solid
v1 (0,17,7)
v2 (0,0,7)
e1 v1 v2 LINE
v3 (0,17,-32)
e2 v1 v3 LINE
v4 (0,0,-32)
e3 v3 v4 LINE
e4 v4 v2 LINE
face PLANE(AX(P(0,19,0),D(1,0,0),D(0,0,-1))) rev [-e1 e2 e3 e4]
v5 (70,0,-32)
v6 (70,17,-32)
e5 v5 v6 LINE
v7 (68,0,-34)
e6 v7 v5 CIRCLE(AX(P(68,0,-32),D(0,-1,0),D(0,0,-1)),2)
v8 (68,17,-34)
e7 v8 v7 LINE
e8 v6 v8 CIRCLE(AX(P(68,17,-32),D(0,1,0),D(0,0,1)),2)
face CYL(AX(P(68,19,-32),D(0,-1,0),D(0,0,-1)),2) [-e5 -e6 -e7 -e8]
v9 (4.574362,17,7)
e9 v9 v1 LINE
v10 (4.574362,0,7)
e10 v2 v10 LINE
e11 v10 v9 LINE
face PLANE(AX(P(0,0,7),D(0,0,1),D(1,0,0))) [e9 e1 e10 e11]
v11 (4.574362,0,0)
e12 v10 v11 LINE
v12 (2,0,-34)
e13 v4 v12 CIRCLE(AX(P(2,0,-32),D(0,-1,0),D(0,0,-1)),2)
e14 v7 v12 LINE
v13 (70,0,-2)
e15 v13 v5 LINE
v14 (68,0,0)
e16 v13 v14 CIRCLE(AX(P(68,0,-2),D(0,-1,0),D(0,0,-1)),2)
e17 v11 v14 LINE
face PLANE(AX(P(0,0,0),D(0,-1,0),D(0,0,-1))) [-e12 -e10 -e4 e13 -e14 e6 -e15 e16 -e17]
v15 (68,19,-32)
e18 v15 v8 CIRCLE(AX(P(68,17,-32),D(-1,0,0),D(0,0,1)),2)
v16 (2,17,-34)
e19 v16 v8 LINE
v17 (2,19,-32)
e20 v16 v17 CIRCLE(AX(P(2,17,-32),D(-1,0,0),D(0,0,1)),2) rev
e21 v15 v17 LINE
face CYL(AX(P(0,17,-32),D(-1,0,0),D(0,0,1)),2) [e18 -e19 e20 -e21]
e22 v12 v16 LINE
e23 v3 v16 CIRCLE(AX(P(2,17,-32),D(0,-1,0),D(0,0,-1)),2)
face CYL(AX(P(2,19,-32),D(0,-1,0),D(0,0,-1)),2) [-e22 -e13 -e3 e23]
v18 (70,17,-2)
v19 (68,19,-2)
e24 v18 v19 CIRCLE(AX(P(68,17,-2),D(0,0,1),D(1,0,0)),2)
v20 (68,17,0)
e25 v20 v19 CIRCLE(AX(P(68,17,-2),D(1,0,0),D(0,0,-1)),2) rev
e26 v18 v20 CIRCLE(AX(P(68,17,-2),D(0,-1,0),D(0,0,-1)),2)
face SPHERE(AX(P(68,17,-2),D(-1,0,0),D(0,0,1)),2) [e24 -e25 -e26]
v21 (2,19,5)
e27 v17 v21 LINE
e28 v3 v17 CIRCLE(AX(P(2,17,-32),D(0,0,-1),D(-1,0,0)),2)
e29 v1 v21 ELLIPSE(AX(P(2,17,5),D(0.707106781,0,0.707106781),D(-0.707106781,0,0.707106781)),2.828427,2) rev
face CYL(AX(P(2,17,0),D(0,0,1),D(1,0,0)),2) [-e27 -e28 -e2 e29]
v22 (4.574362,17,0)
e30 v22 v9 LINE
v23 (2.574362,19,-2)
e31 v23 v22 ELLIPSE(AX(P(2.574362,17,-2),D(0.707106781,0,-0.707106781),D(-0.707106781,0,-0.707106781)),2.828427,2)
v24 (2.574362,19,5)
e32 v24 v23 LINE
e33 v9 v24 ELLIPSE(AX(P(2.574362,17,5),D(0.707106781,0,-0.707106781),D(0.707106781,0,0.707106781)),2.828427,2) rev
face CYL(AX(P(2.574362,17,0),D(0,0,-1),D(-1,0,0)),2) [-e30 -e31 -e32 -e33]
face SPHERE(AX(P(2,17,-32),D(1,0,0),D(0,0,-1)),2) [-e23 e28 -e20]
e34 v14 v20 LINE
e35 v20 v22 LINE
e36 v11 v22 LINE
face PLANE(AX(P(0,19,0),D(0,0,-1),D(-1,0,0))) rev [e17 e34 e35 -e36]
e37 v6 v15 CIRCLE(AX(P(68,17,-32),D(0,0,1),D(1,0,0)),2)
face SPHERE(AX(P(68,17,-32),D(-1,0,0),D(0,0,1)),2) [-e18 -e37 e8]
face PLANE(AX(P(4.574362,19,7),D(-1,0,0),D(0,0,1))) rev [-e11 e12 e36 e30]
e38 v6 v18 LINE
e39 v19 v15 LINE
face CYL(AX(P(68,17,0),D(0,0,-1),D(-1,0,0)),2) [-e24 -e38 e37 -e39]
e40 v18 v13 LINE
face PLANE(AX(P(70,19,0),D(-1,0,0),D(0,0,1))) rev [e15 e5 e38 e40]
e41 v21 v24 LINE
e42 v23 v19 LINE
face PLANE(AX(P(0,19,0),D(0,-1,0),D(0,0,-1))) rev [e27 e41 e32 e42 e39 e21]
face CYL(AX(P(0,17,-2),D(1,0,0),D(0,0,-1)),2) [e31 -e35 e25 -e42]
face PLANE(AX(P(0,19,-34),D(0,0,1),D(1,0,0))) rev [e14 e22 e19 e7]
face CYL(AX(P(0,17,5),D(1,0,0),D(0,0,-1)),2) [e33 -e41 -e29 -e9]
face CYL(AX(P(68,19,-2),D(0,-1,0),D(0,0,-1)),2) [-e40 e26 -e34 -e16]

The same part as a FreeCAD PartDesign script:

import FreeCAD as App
import Part
import Sketcher
from FreeCAD import Vector


def edges_at(feature, points):
    """Names of the edges that pass closest to the given points."""
    edges = feature.Shape.Edges
    near = lambda p: min(range(len(edges)), key=lambda i: edges[i].distToShape(Part.Vertex(*p))[0])
    return sorted({f"Edge{near(p) + 1}" for p in points})


def add_polygon(sketch, points):
    """Adds a closed chain of lines whose ends are joined by coincident constraints."""
    first, n = sketch.GeometryCount, len(points)
    for a, b in zip(points, points[1:] + points[:1]):
        sketch.addGeometry(Part.LineSegment(App.Vector(*a, 0), App.Vector(*b, 0)), False)
    for i in range(n):
        sketch.addConstraint(Sketcher.Constraint("Coincident", first + i, 2, first + (i + 1) % n, 1))

doc = App.newDocument("Part")
body = doc.addObject("PartDesign::Body", "Body")

# Sketch on XZ plane
sketch1 = body.newObject("Sketcher::SketchObject", "Sketch")
sketch1.AttachmentSupport = (doc.getObject("XZ_Plane"), [""])
sketch1.MapMode = "FlatFace"
add_polygon(sketch1, [(0, -34), (0, 0), (70, 0), (70, -34)])  # lines 0-3
sketch1.addConstraint([
    Sketcher.Constraint("Vertical", 0),
    Sketcher.Constraint("Horizontal", 1),
    Sketcher.Constraint("Vertical", 2),
    Sketcher.Constraint("Horizontal", 3),
    Sketcher.Constraint("Coincident", 0, 2, -1, 1),
    Sketcher.Constraint("DistanceX", 1, 1, 1, 2, 70.0),
    Sketcher.Constraint("DistanceY", 0, 1, 0, 2, 34.0),
])
pad1 = body.newObject("PartDesign::Pad", "Pad")
pad1.Profile = sketch1
pad1.Length = 19
pad1.Reversed = True

# Sketch on XY plane
sketch2 = body.newObject("Sketcher::SketchObject", "Sketch001")
sketch2.AttachmentSupport = (doc.getObject("XY_Plane"), [""])
sketch2.MapMode = "FlatFace"
add_polygon(sketch2, [(0, 19), (0, 0), (4.574362, 0), (4.574362, 19)])  # lines 0-3
sketch2.addConstraint([
    Sketcher.Constraint("Vertical", 0),
    Sketcher.Constraint("Horizontal", 1),
    Sketcher.Constraint("Vertical", 2),
    Sketcher.Constraint("Horizontal", 3),
    Sketcher.Constraint("Coincident", 0, 2, -1, 1),
    Sketcher.Constraint("DistanceY", 0, 2, 0, 1, 19.0),
    Sketcher.Constraint("DistanceX", 1, 1, 1, 2, 4.574362),
])
pad2 = body.newObject("PartDesign::Pad", "Pad001")
pad2.Profile = sketch2
pad2.Length = 7
doc.recompute()

fillet = body.newObject("PartDesign::Fillet", "Fillet")
fillet.Base = (pad2, edges_at(pad2, [(35, 19, -34), (37.287, 19, 0)]))
fillet.Radius = 2
doc.recompute()

fillet2 = body.newObject("PartDesign::Fillet", "Fillet001")
fillet2.Base = (fillet, edges_at(fillet, [
    (0, 8.5, -34),
    (0, 18.414, -33.414),
    (70, 8.5, 0),
    (70, 18.414, -0.586),
    (70, 18.414, -33.414),
    (4.574, 19, 2.5),
    (2.287, 19, 7),
    (0, 19, -12.5),
    (70, 19, -17),
    (70, 8.5, -34),
]))
fillet2.Radius = 2

doc.recompute()
